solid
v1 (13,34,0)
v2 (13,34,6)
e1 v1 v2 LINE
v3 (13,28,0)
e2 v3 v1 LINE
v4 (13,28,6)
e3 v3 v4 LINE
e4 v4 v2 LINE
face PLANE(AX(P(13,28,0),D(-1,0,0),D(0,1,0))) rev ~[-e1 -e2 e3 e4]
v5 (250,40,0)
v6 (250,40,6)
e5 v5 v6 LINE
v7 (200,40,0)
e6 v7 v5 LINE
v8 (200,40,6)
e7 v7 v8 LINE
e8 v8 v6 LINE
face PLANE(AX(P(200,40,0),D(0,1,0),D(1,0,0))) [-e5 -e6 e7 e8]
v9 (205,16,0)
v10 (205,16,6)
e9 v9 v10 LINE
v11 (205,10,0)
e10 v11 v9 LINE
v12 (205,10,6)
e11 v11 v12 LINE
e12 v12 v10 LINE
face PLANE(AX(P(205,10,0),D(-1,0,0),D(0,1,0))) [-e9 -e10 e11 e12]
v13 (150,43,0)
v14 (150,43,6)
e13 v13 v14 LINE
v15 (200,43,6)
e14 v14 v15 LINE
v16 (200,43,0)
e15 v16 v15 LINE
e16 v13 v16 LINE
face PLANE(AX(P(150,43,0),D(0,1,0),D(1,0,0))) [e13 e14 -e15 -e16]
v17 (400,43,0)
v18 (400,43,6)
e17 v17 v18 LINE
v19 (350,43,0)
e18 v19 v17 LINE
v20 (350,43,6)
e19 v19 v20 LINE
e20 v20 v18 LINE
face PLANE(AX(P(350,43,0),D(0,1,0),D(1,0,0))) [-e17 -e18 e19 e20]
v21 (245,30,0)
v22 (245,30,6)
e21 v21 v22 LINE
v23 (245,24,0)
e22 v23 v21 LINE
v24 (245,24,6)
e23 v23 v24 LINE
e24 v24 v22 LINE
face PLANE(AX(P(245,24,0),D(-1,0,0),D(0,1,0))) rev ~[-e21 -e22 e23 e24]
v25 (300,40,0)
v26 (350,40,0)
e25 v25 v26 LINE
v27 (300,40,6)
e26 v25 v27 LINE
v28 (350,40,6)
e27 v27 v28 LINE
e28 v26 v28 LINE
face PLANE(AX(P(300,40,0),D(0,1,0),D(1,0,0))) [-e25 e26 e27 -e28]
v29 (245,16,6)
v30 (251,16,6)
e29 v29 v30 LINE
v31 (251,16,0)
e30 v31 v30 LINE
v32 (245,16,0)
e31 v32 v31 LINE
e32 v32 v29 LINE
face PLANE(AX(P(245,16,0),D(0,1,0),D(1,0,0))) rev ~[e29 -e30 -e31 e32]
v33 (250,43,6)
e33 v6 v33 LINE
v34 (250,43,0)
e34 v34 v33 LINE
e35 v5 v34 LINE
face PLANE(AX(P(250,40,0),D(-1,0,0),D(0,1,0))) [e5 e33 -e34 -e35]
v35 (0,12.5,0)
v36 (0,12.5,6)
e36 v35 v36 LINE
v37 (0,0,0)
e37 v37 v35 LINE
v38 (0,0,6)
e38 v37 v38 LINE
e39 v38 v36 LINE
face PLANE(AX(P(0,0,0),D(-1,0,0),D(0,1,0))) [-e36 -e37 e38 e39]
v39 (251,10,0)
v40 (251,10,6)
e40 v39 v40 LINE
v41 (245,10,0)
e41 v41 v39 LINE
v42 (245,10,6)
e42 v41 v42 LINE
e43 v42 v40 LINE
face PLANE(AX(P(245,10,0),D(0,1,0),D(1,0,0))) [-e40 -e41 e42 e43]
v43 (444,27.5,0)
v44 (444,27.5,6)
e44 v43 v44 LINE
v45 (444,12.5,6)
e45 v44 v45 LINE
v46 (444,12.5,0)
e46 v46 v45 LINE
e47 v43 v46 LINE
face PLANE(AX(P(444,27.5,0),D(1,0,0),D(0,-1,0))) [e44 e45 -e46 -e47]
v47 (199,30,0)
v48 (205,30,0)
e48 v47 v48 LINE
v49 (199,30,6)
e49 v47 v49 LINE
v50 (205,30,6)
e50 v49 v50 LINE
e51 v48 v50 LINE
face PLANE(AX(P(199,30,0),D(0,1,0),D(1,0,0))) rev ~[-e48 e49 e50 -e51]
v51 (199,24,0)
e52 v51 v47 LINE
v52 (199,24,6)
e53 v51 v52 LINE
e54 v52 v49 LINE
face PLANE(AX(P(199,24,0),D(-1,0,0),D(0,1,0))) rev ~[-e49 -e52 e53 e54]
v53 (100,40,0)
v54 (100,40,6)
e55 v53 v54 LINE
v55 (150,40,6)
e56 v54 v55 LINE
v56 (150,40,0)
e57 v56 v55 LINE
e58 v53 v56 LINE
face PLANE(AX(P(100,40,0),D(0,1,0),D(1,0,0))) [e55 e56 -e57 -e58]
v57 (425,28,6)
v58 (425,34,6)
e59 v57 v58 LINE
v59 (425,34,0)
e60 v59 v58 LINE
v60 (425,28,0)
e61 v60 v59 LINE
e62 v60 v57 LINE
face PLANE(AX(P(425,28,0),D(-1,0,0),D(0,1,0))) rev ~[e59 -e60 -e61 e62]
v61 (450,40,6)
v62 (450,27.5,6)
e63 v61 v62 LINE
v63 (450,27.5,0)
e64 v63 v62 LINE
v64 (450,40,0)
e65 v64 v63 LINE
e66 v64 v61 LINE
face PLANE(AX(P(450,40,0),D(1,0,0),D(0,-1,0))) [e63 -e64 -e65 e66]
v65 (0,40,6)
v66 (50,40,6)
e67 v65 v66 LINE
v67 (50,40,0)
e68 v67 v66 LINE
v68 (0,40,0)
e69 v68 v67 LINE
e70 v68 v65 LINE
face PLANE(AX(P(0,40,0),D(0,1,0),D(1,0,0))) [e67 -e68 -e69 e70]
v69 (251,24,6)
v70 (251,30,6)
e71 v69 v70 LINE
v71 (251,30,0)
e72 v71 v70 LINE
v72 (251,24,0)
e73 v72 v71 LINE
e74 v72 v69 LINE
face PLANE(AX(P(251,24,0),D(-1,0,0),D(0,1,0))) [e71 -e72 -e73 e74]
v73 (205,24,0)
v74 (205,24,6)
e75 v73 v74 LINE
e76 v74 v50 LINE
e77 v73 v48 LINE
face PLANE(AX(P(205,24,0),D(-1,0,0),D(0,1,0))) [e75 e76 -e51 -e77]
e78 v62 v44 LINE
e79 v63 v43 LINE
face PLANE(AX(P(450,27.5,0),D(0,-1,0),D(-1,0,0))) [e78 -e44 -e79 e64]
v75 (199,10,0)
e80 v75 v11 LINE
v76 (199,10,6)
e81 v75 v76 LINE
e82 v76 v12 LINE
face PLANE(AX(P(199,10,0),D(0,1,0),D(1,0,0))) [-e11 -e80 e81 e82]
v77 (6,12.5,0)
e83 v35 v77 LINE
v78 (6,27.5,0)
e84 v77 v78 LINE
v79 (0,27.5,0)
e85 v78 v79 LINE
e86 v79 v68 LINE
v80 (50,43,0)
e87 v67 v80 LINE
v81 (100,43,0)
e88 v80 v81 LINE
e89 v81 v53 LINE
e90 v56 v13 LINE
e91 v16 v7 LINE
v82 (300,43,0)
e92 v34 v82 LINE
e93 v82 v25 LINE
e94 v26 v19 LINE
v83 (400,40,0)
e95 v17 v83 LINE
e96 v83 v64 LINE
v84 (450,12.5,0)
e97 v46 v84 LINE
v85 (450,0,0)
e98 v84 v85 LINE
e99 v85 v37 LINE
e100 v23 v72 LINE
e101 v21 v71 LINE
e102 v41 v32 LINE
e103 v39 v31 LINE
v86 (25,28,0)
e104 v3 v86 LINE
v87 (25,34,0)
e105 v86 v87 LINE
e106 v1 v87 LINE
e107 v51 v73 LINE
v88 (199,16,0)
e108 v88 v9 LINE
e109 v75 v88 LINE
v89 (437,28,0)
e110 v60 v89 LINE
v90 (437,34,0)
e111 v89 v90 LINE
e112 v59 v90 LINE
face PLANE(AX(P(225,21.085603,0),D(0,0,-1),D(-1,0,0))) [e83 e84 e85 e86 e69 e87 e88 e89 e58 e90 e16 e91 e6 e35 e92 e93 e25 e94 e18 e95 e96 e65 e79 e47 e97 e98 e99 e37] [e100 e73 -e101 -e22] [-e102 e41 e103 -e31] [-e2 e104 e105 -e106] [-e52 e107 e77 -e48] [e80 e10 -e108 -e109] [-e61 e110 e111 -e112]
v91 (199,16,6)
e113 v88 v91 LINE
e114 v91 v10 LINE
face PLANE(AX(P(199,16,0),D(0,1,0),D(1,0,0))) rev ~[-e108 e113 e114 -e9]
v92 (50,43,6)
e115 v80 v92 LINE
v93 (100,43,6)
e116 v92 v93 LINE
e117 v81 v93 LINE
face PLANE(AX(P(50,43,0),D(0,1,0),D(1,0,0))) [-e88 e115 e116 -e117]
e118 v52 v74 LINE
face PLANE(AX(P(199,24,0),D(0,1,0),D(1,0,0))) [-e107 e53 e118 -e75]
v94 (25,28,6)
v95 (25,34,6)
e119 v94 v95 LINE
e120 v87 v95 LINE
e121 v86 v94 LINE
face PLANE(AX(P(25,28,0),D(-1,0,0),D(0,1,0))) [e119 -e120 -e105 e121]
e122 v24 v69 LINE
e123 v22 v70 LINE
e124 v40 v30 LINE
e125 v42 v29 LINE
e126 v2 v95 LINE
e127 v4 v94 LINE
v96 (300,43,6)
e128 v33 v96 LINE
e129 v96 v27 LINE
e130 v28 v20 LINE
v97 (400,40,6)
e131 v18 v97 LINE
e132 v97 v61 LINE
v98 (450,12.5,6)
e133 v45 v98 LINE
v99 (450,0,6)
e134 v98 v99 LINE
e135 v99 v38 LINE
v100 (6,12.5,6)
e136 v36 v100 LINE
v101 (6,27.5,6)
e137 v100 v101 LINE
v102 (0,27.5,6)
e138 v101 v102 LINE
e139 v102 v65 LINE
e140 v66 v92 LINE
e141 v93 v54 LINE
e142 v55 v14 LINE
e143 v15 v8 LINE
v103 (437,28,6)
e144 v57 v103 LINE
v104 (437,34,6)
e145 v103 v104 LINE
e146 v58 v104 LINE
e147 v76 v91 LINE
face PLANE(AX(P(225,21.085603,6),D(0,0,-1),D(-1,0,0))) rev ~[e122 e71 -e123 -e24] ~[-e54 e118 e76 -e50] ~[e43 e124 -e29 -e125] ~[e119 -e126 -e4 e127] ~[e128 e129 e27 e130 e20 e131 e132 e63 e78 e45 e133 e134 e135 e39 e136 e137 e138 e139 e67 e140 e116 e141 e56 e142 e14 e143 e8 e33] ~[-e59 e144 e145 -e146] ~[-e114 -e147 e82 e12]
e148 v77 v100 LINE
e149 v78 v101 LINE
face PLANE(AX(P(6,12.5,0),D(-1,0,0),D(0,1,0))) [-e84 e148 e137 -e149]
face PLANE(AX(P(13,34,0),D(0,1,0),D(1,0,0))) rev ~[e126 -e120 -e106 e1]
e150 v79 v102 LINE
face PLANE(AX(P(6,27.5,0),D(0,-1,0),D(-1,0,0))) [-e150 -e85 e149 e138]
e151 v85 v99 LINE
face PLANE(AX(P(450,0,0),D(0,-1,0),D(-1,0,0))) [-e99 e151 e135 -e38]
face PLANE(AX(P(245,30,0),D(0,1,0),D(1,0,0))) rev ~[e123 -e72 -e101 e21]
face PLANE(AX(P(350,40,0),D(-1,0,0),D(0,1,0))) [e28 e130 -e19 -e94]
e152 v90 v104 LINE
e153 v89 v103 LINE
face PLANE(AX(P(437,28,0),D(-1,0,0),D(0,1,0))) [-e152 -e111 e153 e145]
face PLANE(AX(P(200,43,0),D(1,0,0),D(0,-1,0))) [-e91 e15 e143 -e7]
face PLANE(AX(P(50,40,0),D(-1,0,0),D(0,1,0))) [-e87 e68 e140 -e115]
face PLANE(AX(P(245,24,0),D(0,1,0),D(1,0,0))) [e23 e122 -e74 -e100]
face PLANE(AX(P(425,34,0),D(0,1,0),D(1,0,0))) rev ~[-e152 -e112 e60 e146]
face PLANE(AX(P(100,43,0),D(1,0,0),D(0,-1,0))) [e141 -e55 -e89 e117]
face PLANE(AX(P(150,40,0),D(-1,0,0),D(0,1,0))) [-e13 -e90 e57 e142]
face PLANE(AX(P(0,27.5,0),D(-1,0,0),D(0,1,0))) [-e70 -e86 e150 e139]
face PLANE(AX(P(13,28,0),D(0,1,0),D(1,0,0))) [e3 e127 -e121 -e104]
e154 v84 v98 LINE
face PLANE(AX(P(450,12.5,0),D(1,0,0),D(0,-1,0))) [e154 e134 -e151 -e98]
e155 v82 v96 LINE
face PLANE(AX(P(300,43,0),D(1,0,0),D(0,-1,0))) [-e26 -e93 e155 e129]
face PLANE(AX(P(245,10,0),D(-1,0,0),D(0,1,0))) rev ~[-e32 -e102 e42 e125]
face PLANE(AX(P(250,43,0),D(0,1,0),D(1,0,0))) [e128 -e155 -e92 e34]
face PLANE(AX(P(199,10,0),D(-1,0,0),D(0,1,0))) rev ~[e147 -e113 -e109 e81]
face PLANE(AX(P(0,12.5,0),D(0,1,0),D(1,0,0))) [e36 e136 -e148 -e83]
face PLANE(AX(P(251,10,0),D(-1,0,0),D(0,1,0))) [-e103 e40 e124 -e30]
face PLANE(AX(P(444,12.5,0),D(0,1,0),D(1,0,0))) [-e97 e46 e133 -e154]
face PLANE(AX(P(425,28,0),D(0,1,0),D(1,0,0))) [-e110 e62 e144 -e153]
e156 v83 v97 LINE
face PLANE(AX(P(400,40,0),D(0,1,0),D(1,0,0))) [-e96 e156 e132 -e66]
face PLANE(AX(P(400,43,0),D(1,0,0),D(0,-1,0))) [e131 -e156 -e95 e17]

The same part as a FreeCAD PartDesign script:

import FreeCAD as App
import Part
import Sketcher

V = App.Vector

doc = App.newDocument("Part")
body = doc.addObject("PartDesign::Body", "Body")

# Sketch on XY plane
sketch1 = doc.addObject("Sketcher::SketchObject", "Sketch")
body.addObject(sketch1)
sketch1.AttachmentSupport = (doc.XY_Plane, [""])
sketch1.MapMode = "FlatFace"
sketch1.addGeometry([
    Part.LineSegment(V(150, 40, 0), V(100, 40, 0)),  # 0
    Part.LineSegment(V(100, 40, 0), V(100, 43, 0)),  # 1
    Part.LineSegment(V(100, 43, 0), V(50, 43, 0)),  # 2
    Part.LineSegment(V(50, 43, 0), V(50, 40, 0)),  # 3
    Part.LineSegment(V(50, 40, 0), V(0, 40, 0)),  # 4
    Part.LineSegment(V(0, 40, 0), V(0, 27.5, 0)),  # 5
    Part.LineSegment(V(0, 27.5, 0), V(6, 27.5, 0)),  # 6
    Part.LineSegment(V(6, 27.5, 0), V(6, 12.5, 0)),  # 7
    Part.LineSegment(V(6, 12.5, 0), V(0, 12.5, 0)),  # 8
    Part.LineSegment(V(0, 12.5, 0), V(0, 0, 0)),  # 9
    Part.LineSegment(V(0, 0, 0), V(450, 0, 0)),  # 10
    Part.LineSegment(V(450, 0, 0), V(450, 12.5, 0)),  # 11
    Part.LineSegment(V(450, 12.5, 0), V(444, 12.5, 0)),  # 12
    Part.LineSegment(V(444, 12.5, 0), V(444, 27.5, 0)),  # 13
    Part.LineSegment(V(444, 27.5, 0), V(450, 27.5, 0)),  # 14
    Part.LineSegment(V(450, 27.5, 0), V(450, 40, 0)),  # 15
    Part.LineSegment(V(450, 40, 0), V(400, 40, 0)),  # 16
    Part.LineSegment(V(400, 40, 0), V(400, 43, 0)),  # 17
    Part.LineSegment(V(400, 43, 0), V(350, 43, 0)),  # 18
    Part.LineSegment(V(350, 43, 0), V(350, 40, 0)),  # 19
    Part.LineSegment(V(350, 40, 0), V(300, 40, 0)),  # 20
    Part.LineSegment(V(300, 40, 0), V(300, 43, 0)),  # 21
    Part.LineSegment(V(300, 43, 0), V(250, 43, 0)),  # 22
    Part.LineSegment(V(250, 43, 0), V(250, 40, 0)),  # 23
    Part.LineSegment(V(250, 40, 0), V(200, 40, 0)),  # 24
    Part.LineSegment(V(200, 40, 0), V(200, 43, 0)),  # 25
    Part.LineSegment(V(200, 43, 0), V(150, 43, 0)),  # 26
    Part.LineSegment(V(150, 43, 0), V(150, 40, 0)),  # 27
    Part.LineSegment(V(245, 10, 0), V(245, 16, 0)),  # 28
    Part.LineSegment(V(245, 16, 0), V(251, 16, 0)),  # 29
    Part.LineSegment(V(251, 16, 0), V(251, 10, 0)),  # 30
    Part.LineSegment(V(251, 10, 0), V(245, 10, 0)),  # 31
    Part.LineSegment(V(199, 10, 0), V(199, 16, 0)),  # 32
    Part.LineSegment(V(199, 16, 0), V(205, 16, 0)),  # 33
    Part.LineSegment(V(205, 16, 0), V(205, 10, 0)),  # 34
    Part.LineSegment(V(205, 10, 0), V(199, 10, 0)),  # 35
    Part.LineSegment(V(245, 24, 0), V(245, 30, 0)),  # 36
    Part.LineSegment(V(245, 30, 0), V(251, 30, 0)),  # 37
    Part.LineSegment(V(251, 30, 0), V(251, 24, 0)),  # 38
    Part.LineSegment(V(251, 24, 0), V(245, 24, 0)),  # 39
    Part.LineSegment(V(425, 28, 0), V(425, 34, 0)),  # 40
    Part.LineSegment(V(425, 34, 0), V(437, 34, 0)),  # 41
    Part.LineSegment(V(437, 34, 0), V(437, 28, 0)),  # 42
    Part.LineSegment(V(437, 28, 0), V(425, 28, 0)),  # 43
    Part.LineSegment(V(199, 24, 0), V(199, 30, 0)),  # 44
    Part.LineSegment(V(199, 30, 0), V(205, 30, 0)),  # 45
    Part.LineSegment(V(205, 30, 0), V(205, 24, 0)),  # 46
    Part.LineSegment(V(205, 24, 0), V(199, 24, 0)),  # 47
    Part.LineSegment(V(13, 28, 0), V(13, 34, 0)),  # 48
    Part.LineSegment(V(13, 34, 0), V(25, 34, 0)),  # 49
    Part.LineSegment(V(25, 34, 0), V(25, 28, 0)),  # 50
    Part.LineSegment(V(25, 28, 0), V(13, 28, 0)),  # 51
], False)
sketch1.addConstraint([
    Sketcher.Constraint("Coincident", 0, 2, 1, 1),
    Sketcher.Constraint("Coincident", 1, 2, 2, 1),
    Sketcher.Constraint("Coincident", 2, 2, 3, 1),
    Sketcher.Constraint("Coincident", 3, 2, 4, 1),
    Sketcher.Constraint("Coincident", 4, 2, 5, 1),
    Sketcher.Constraint("Coincident", 5, 2, 6, 1),
    Sketcher.Constraint("Coincident", 6, 2, 7, 1),
    Sketcher.Constraint("Coincident", 7, 2, 8, 1),
    Sketcher.Constraint("Coincident", 8, 2, 9, 1),
    Sketcher.Constraint("Coincident", 9, 2, 10, 1),
    Sketcher.Constraint("Coincident", 10, 2, 11, 1),
    Sketcher.Constraint("Coincident", 11, 2, 12, 1),
    Sketcher.Constraint("Coincident", 12, 2, 13, 1),
    Sketcher.Constraint("Coincident", 13, 2, 14, 1),
    Sketcher.Constraint("Coincident", 14, 2, 15, 1),
    Sketcher.Constraint("Coincident", 15, 2, 16, 1),
    Sketcher.Constraint("Coincident", 16, 2, 17, 1),
    Sketcher.Constraint("Coincident", 17, 2, 18, 1),
    Sketcher.Constraint("Coincident", 18, 2, 19, 1),
    Sketcher.Constraint("Coincident", 19, 2, 20, 1),
    Sketcher.Constraint("Coincident", 20, 2, 21, 1),
    Sketcher.Constraint("Coincident", 21, 2, 22, 1),
    Sketcher.Constraint("Coincident", 22, 2, 23, 1),
    Sketcher.Constraint("Coincident", 23, 2, 24, 1),
    Sketcher.Constraint("Coincident", 24, 2, 25, 1),
    Sketcher.Constraint("Coincident", 25, 2, 26, 1),
    Sketcher.Constraint("Coincident", 26, 2, 27, 1),
    Sketcher.Constraint("Coincident", 27, 2, 0, 1),
    Sketcher.Constraint("Coincident", 28, 2, 29, 1),
    Sketcher.Constraint("Coincident", 29, 2, 30, 1),
    Sketcher.Constraint("Coincident", 30, 2, 31, 1),
    Sketcher.Constraint("Coincident", 31, 2, 28, 1),
    Sketcher.Constraint("Coincident", 32, 2, 33, 1),
    Sketcher.Constraint("Coincident", 33, 2, 34, 1),
    Sketcher.Constraint("Coincident", 34, 2, 35, 1),
    Sketcher.Constraint("Coincident", 35, 2, 32, 1),
    Sketcher.Constraint("Coincident", 36, 2, 37, 1),
    Sketcher.Constraint("Coincident", 37, 2, 38, 1),
    Sketcher.Constraint("Coincident", 38, 2, 39, 1),
    Sketcher.Constraint("Coincident", 39, 2, 36, 1),
    Sketcher.Constraint("Coincident", 40, 2, 41, 1),
    Sketcher.Constraint("Coincident", 41, 2, 42, 1),
    Sketcher.Constraint("Coincident", 42, 2, 43, 1),
    Sketcher.Constraint("Coincident", 43, 2, 40, 1),
    Sketcher.Constraint("Coincident", 44, 2, 45, 1),
    Sketcher.Constraint("Coincident", 45, 2, 46, 1),
    Sketcher.Constraint("Coincident", 46, 2, 47, 1),
    Sketcher.Constraint("Coincident", 47, 2, 44, 1),
    Sketcher.Constraint("Coincident", 48, 2, 49, 1),
    Sketcher.Constraint("Coincident", 49, 2, 50, 1),
    Sketcher.Constraint("Coincident", 50, 2, 51, 1),
    Sketcher.Constraint("Coincident", 51, 2, 48, 1),
    Sketcher.Constraint("Horizontal", 0),
    Sketcher.Constraint("Vertical", 1),
    Sketcher.Constraint("Horizontal", 2),
    Sketcher.Constraint("Vertical", 3),
    Sketcher.Constraint("Horizontal", 4),
    Sketcher.Constraint("Vertical", 5),
    Sketcher.Constraint("Horizontal", 6),
    Sketcher.Constraint("Vertical", 7),
    Sketcher.Constraint("Horizontal", 8),
    Sketcher.Constraint("Vertical", 9),
    Sketcher.Constraint("Horizontal", 10),
    Sketcher.Constraint("Vertical", 11),
    Sketcher.Constraint("Horizontal", 12),
    Sketcher.Constraint("Vertical", 13),
    Sketcher.Constraint("Horizontal", 14),
    Sketcher.Constraint("Vertical", 15),
    Sketcher.Constraint("Horizontal", 16),
    Sketcher.Constraint("Vertical", 17),
    Sketcher.Constraint("Horizontal", 18),
    Sketcher.Constraint("Vertical", 19),
    Sketcher.Constraint("Horizontal", 20),
    Sketcher.Constraint("Vertical", 21),
    Sketcher.Constraint("Horizontal", 22),
    Sketcher.Constraint("Vertical", 23),
    Sketcher.Constraint("Horizontal", 24),
    Sketcher.Constraint("Vertical", 25),
    Sketcher.Constraint("Horizontal", 26),
    Sketcher.Constraint("Vertical", 27),
    Sketcher.Constraint("Vertical", 28),
    Sketcher.Constraint("Horizontal", 29),
    Sketcher.Constraint("Vertical", 30),
    Sketcher.Constraint("Horizontal", 31),
    Sketcher.Constraint("Vertical", 32),
    Sketcher.Constraint("Horizontal", 33),
    Sketcher.Constraint("Vertical", 34),
    Sketcher.Constraint("Horizontal", 35),
    Sketcher.Constraint("Vertical", 36),
    Sketcher.Constraint("Horizontal", 37),
    Sketcher.Constraint("Vertical", 38),
    Sketcher.Constraint("Horizontal", 39),
    Sketcher.Constraint("Vertical", 40),
    Sketcher.Constraint("Horizontal", 41),
    Sketcher.Constraint("Vertical", 42),
    Sketcher.Constraint("Horizontal", 43),
    Sketcher.Constraint("Vertical", 44),
    Sketcher.Constraint("Horizontal", 45),
    Sketcher.Constraint("Vertical", 46),
    Sketcher.Constraint("Horizontal", 47),
    Sketcher.Constraint("Vertical", 48),
    Sketcher.Constraint("Horizontal", 49),
    Sketcher.Constraint("Vertical", 50),
    Sketcher.Constraint("Horizontal", 51),
    Sketcher.Constraint("Coincident", 9, 2, -1, 1),
    Sketcher.Constraint("PointOnObject", 4, 2, -2),
    Sketcher.Constraint("Horizontal", 0, 2, 3, 2),
    Sketcher.Constraint("Horizontal", 8, 2, 11, 2),
    Sketcher.Constraint("Horizontal", 6, 2, 13, 2),
    Sketcher.Constraint("Horizontal", 4, 2, 15, 2),
    Sketcher.Constraint("Horizontal", 2, 2, 17, 2),
    Sketcher.Constraint("Horizontal", 16, 2, 19, 2),
    Sketcher.Constraint("Horizontal", 18, 2, 21, 2),
    Sketcher.Constraint("Horizontal", 20, 2, 23, 2),
    Sketcher.Constraint("Horizontal", 22, 2, 25, 2),
    Sketcher.Constraint("Horizontal", 29, 2, 32, 2),
    Sketcher.Constraint("Horizontal", 31, 2, 34, 2),
    Sketcher.Constraint("Horizontal", 37, 2, 44, 2),
    Sketcher.Constraint("Horizontal", 39, 2, 46, 2),
    Sketcher.Constraint("Horizontal", 41, 2, 48, 2),
    Sketcher.Constraint("Horizontal", 43, 2, 50, 2),
    Sketcher.Constraint("Vertical", 11, 2, 14, 2),
    Sketcher.Constraint("Vertical", 31, 2, 36, 2),
    Sketcher.Constraint("Vertical", 30, 2, 37, 2),
    Sketcher.Constraint("Vertical", 35, 2, 44, 2),
    Sketcher.Constraint("Vertical", 34, 2, 45, 2),
    Sketcher.Constraint("Equal", 0, 2),
    Sketcher.Constraint("Equal", 2, 4),
    Sketcher.Constraint("Equal", 8, 12),
    Sketcher.Constraint("Equal", 4, 16),
    Sketcher.Constraint("Equal", 16, 18),
    Sketcher.Constraint("Equal", 18, 20),
    Sketcher.Constraint("Equal", 20, 22),
    Sketcher.Constraint("Equal", 22, 24),
    Sketcher.Constraint("Equal", 24, 26),
    Sketcher.Constraint("Equal", 14, 29),
    Sketcher.Constraint("Equal", 31, 33),
    Sketcher.Constraint("Equal", 43, 49),
    Sketcher.Constraint("Equal", 5, 9),
    Sketcher.Constraint("Equal", 47, 28),
    Sketcher.Constraint("Equal", 34, 36),
    Sketcher.Constraint("Equal", 38, 40),
    Sketcher.Constraint("DistanceX", 0, 2, 0, 1, 50.0),
    Sketcher.Constraint("DistanceX", 6, 1, 6, 2, 6.0),
    Sketcher.Constraint("DistanceX", 41, 1, 41, 2, 12.0),
    Sketcher.Constraint("DistanceY", 1, 1, 1, 2, 3.0),
    Sketcher.Constraint("DistanceY", 7, 2, 7, 1, 15.0),
    Sketcher.Constraint("DistanceY", 5, 2, 5, 1, 12.5),
    Sketcher.Constraint("DistanceX", -1, 1, 28, 2, 245.0),
    Sketcher.Constraint("DistanceY", -1, 1, 28, 2, 16.0),
    Sketcher.Constraint("DistanceX", -1, 1, 32, 2, 199.0),
    Sketcher.Constraint("DistanceY", -1, 1, 36, 2, 30.0),
    Sketcher.Constraint("DistanceX", -1, 1, 40, 2, 425.0),
    Sketcher.Constraint("DistanceY", -1, 1, 40, 2, 34.0),
    Sketcher.Constraint("DistanceX", -1, 1, 48, 2, 13.0),
])
pad1 = doc.addObject("PartDesign::Pad", "Pad")
body.addObject(pad1)
pad1.Profile = sketch1
pad1.Length = 6

doc.recompute()
